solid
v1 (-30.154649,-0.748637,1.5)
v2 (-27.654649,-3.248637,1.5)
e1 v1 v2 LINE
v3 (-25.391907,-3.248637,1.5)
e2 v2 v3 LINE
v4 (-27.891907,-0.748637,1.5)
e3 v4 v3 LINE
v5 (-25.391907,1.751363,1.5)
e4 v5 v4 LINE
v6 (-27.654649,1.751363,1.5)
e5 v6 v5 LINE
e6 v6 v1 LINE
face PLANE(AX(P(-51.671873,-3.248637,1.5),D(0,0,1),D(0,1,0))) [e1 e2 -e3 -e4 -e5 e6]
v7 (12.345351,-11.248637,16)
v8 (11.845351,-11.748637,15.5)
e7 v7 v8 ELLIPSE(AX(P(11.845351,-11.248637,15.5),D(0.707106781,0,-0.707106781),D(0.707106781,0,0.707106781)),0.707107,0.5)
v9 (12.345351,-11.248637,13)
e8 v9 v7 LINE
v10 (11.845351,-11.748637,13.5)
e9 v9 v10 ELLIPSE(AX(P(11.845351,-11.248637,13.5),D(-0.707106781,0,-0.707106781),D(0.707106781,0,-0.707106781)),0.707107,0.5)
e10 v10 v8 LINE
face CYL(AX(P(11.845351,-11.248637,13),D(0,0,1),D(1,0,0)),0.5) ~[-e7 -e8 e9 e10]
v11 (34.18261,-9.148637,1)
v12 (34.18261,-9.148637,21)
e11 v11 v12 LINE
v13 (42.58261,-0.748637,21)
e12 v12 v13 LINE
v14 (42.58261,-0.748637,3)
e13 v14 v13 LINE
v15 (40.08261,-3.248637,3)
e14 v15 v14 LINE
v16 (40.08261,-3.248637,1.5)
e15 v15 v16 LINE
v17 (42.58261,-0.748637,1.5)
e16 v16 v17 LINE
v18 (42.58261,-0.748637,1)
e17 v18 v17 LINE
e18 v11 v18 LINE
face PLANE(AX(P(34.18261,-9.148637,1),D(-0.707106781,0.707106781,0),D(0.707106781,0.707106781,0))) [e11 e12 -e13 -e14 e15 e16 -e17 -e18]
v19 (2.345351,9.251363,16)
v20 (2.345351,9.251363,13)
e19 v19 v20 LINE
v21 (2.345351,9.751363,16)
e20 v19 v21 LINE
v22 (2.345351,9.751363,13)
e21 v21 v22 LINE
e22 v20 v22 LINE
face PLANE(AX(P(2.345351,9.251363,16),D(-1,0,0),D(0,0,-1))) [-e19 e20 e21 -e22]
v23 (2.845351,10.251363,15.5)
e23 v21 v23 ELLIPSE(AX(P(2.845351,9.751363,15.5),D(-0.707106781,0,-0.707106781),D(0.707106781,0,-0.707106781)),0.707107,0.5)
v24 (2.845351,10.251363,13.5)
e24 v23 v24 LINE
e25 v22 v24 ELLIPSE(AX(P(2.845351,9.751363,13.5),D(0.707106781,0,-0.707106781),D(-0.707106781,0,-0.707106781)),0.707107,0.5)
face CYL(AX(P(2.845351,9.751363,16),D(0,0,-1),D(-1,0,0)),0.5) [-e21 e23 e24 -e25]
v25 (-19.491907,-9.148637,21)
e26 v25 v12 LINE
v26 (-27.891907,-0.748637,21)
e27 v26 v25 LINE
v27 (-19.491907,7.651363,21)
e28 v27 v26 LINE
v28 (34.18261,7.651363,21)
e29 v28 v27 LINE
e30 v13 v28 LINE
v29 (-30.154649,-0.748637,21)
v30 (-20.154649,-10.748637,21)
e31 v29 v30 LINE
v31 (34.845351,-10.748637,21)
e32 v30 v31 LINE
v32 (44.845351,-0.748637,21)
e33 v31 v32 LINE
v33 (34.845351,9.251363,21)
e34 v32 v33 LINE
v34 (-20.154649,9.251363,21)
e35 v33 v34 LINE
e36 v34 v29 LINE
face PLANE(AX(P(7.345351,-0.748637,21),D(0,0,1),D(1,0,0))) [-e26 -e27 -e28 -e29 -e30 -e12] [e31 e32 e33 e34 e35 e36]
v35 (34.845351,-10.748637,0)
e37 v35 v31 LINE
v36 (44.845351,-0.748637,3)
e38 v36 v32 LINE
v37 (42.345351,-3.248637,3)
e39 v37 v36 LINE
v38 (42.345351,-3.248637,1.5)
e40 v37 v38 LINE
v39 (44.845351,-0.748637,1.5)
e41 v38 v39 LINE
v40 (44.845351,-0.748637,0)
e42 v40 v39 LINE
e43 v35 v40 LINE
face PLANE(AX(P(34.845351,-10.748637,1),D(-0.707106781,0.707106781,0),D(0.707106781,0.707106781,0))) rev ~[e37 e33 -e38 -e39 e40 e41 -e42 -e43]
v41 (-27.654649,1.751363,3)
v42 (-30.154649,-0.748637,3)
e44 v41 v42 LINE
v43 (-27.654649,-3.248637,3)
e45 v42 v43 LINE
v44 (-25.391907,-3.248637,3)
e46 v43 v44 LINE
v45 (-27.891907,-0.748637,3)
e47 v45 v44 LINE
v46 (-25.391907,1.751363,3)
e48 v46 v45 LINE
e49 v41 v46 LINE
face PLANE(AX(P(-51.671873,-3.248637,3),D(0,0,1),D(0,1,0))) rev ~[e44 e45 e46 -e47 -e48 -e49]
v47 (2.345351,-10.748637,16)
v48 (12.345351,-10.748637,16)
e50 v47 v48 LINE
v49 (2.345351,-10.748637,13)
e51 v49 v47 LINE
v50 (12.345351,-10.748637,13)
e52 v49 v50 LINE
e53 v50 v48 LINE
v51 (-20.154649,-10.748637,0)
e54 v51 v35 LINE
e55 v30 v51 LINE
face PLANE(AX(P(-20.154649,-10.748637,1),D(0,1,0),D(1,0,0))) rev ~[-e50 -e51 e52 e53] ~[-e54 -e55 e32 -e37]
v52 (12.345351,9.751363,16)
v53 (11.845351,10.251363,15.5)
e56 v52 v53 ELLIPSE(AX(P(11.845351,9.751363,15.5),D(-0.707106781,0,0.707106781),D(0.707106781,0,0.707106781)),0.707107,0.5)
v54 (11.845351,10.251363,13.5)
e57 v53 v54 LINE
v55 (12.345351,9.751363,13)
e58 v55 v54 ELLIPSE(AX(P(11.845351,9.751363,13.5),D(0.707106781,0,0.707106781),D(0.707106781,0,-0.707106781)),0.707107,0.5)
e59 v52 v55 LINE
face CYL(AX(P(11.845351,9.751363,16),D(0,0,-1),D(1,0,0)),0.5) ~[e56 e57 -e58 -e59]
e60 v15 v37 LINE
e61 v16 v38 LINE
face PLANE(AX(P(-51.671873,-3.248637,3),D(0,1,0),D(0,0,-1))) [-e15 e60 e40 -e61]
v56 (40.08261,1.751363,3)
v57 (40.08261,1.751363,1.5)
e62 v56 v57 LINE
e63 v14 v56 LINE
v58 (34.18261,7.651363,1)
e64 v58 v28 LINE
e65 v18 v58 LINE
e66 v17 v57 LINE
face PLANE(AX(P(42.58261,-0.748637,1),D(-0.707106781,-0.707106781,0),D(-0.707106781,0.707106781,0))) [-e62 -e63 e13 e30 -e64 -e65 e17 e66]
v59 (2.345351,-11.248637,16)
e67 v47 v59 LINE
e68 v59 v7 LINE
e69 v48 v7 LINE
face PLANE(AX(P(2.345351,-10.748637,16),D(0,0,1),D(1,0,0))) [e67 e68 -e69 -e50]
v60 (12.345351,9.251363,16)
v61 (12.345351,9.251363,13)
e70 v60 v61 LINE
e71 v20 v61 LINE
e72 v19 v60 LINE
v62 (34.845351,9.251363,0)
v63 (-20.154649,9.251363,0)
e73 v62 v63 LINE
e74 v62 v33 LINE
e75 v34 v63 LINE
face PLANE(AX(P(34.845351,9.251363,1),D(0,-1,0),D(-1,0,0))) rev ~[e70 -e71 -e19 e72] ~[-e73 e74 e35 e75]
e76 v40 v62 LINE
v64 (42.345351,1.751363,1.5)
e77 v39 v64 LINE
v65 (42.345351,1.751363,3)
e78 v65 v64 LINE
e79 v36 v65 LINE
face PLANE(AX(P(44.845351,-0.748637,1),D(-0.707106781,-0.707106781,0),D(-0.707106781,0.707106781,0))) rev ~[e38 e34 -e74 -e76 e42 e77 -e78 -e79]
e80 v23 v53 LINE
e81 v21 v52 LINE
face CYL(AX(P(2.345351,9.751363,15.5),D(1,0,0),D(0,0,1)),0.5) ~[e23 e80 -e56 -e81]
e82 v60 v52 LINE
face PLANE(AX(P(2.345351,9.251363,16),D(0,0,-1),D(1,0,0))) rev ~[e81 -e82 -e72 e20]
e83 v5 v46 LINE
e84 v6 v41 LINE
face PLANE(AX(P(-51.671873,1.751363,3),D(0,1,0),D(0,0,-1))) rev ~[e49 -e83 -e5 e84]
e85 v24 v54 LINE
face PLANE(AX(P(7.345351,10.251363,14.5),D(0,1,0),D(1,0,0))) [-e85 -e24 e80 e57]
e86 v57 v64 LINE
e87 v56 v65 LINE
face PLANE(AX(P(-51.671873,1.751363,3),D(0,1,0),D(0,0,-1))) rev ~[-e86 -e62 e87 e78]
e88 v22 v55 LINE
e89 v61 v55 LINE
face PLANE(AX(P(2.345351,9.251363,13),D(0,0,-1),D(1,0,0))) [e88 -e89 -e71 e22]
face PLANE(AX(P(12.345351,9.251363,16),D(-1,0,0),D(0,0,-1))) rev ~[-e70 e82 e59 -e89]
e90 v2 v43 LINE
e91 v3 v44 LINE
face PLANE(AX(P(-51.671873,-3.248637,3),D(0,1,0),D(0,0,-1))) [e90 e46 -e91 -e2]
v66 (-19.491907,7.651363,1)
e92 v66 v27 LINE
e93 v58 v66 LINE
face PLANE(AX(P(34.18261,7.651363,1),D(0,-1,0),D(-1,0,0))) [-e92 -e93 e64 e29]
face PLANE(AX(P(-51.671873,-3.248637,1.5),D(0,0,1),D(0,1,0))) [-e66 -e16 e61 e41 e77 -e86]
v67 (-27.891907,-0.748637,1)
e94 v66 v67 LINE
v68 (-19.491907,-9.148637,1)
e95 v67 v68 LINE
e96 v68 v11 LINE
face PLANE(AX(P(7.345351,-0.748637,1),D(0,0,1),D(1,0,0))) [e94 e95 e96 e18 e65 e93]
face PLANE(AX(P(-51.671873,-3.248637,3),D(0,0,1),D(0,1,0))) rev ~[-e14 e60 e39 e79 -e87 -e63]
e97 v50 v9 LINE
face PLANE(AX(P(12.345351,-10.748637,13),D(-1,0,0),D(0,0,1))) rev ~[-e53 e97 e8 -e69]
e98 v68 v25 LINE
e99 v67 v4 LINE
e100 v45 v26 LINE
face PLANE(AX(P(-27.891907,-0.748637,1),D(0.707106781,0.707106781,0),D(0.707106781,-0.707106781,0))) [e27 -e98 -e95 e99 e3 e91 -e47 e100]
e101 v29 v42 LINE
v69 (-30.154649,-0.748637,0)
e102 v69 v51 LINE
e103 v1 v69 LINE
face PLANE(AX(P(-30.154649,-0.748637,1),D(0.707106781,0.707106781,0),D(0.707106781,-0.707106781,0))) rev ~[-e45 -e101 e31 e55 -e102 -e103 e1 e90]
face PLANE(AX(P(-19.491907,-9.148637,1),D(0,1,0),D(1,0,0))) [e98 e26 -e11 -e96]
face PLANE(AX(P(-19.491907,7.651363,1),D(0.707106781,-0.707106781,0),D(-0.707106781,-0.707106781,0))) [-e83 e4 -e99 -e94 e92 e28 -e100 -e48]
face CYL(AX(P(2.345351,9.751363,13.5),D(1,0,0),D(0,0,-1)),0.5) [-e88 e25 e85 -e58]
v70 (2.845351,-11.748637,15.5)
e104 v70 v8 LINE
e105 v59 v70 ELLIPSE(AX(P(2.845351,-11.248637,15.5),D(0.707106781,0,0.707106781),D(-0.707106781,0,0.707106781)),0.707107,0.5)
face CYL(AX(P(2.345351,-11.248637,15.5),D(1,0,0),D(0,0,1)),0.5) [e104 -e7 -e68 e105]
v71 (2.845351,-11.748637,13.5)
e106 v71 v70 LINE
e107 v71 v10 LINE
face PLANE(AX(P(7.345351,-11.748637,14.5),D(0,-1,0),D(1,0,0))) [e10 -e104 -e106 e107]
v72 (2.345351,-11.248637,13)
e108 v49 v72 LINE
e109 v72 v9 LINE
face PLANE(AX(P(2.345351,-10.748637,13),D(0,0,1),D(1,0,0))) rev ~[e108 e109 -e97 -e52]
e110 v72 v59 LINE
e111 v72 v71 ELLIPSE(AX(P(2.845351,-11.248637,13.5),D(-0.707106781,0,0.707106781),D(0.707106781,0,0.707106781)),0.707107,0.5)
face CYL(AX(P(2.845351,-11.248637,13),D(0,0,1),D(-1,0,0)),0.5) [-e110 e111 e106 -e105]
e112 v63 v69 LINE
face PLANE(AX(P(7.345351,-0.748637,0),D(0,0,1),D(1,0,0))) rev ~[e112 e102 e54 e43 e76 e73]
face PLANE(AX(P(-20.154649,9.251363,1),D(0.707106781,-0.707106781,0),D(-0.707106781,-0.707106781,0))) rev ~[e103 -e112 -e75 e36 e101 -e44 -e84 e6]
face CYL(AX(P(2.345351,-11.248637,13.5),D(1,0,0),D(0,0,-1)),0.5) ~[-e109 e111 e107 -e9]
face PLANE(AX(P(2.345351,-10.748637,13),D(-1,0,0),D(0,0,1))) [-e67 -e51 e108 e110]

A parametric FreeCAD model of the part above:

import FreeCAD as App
import Part
import Sketcher
from FreeCAD import Vector
Q = App.Units.Quantity


def edges_at(feature, points):
    """Names of the edges that pass closest to the given points."""
    edges = feature.Shape.Edges
    near = lambda p: min(range(len(edges)), key=lambda i: edges[i].distToShape(Part.Vertex(*p))[0])
    return sorted({f"Edge{near(p) + 1}" for p in points})


def add_polygon(sketch, points):
    """Adds a closed chain of lines whose ends are joined by coincident constraints."""
    first, n = sketch.GeometryCount, len(points)
    for a, b in zip(points, points[1:] + points[:1]):
        sketch.addGeometry(Part.LineSegment(App.Vector(*a, 0), App.Vector(*b, 0)), False)
    for i in range(n):
        sketch.addConstraint(Sketcher.Constraint("Coincident", first + i, 2, first + (i + 1) % n, 1))

doc = App.newDocument("Part")
body = doc.addObject("PartDesign::Body", "Body")

sketch1 = body.newObject("Sketcher::SketchObject", "Sketch")
sketch1.AttachmentSupport = (doc.getObject("XY_Plane"), [""])
sketch1.MapMode = "FlatFace"
add_polygon(sketch1, [(34.845351, 9.251363), (-20.154649, 9.251363), (-30.154649, -0.748637), (-20.154649, -10.748637), (34.845351, -10.748637), (44.845351, -0.748637)])
sketch1.addConstraint(Sketcher.Constraint("Horizontal", 0))
sketch1.addConstraint(Sketcher.Constraint("Horizontal", 3))
sketch1.addConstraint(Sketcher.Constraint("Perpendicular", 1, 2))
sketch1.addConstraint(Sketcher.Constraint("Perpendicular", 2, 4))
sketch1.addConstraint(Sketcher.Constraint("Perpendicular", 4, 5))
sketch1.addConstraint(Sketcher.Constraint("Horizontal", 1, 2, 4, 2))
sketch1.addConstraint(Sketcher.Constraint("Vertical", 0, 2, 2, 2))
sketch1.addConstraint(Sketcher.Constraint("Vertical", 3, 2, 5, 2))
sketch1.addConstraint(Sketcher.Constraint("DistanceX", 0, 2, 0, 1, Q("55 mm")))
sketch1.addConstraint(Sketcher.Constraint("DistanceX", 1, 2, 0, 2, Q("10 mm")))
sketch1.addConstraint(Sketcher.Constraint("DistanceX", 0, 2, -1, 1, Q("20.154649 mm")))
sketch1.addConstraint(Sketcher.Constraint("DistanceY", -1, 1, 0, 2, Q("9.251363 mm")))
pad1 = body.newObject("PartDesign::Pad", "Pad")
pad1.Profile = sketch1
pad1.Length = 1

sketch2 = body.newObject("Sketcher::SketchObject", "Sketch001")
sketch2.AttachmentSupport = (doc.getObject("XY_Plane"), [""])
sketch2.MapMode = "FlatFace"
sketch2.AttachmentOffset = App.Placement(Vector(0, 0, 1), App.Rotation())
add_polygon(sketch2, [(-20.154649, -10.748637), (34.845351, -10.748637), (44.845351, -0.748637), (34.845351, 9.251363), (-20.154649, 9.251363), (-30.154649, -0.748637)])
add_polygon(sketch2, [(-27.891907, -0.748637), (-19.491907, 7.651363), (34.18261, 7.651363), (42.58261, -0.748637), (34.18261, -9.148637), (-19.491907, -9.148637)])
sketch2.addConstraint(Sketcher.Constraint("Horizontal", 0))
sketch2.addConstraint(Sketcher.Constraint("Horizontal", 3))
sketch2.addConstraint(Sketcher.Constraint("Horizontal", 7))
sketch2.addConstraint(Sketcher.Constraint("Horizontal", 10))
sketch2.addConstraint(Sketcher.Constraint("Perpendicular", 1, 2))
sketch2.addConstraint(Sketcher.Constraint("Perpendicular", 2, 4))
sketch2.addConstraint(Sketcher.Constraint("Perpendicular", 4, 5))
sketch2.addConstraint(Sketcher.Constraint("Perpendicular", 5, 6))
sketch2.addConstraint(Sketcher.Constraint("Perpendicular", 6, 8))
sketch2.addConstraint(Sketcher.Constraint("Perpendicular", 8, 9))
sketch2.addConstraint(Sketcher.Constraint("Perpendicular", 9, 11))
sketch2.addConstraint(Sketcher.Constraint("Horizontal", 1, 2, 4, 2))
sketch2.addConstraint(Sketcher.Constraint("Horizontal", 4, 2, 8, 2))
sketch2.addConstraint(Sketcher.Constraint("Horizontal", 8, 2, 11, 2))
sketch2.addConstraint(Sketcher.Constraint("Vertical", 0, 2, 2, 2))
sketch2.addConstraint(Sketcher.Constraint("Vertical", 3, 2, 5, 2))
sketch2.addConstraint(Sketcher.Constraint("Vertical", 7, 2, 9, 2))
sketch2.addConstraint(Sketcher.Constraint("DistanceX", 0, 1, 0, 2, Q("55 mm")))
sketch2.addConstraint(Sketcher.Constraint("DistanceX", 0, 2, 1, 2, Q("10 mm")))
sketch2.addConstraint(Sketcher.Constraint("DistanceY", 6, 2, 3, 2, Q("1.6 mm")))
sketch2.addConstraint(Sketcher.Constraint("DistanceX", 7, 1, 7, 2, Q("53.674517 mm")))
sketch2.addConstraint(Sketcher.Constraint("DistanceX", -1, 1, 0, 2, Q("34.845351 mm")))
sketch2.addConstraint(Sketcher.Constraint("DistanceX", -1, 1, 7, 2, Q("34.18261 mm")))
sketch2.addConstraint(Sketcher.Constraint("DistanceY", 0, 2, -1, 1, Q("10.748637 mm")))
pad2 = body.newObject("PartDesign::Pad", "Pad001")
pad2.Profile = sketch2
pad2.Length = 20

sketch3 = body.newObject("Sketcher::SketchObject", "Sketch002")
sketch3.AttachmentSupport = (doc.getObject("YZ_Plane"), [""])
sketch3.MapMode = "FlatFace"
add_polygon(sketch3, [(1.751363, 3), (-3.248637, 3), (-3.248637, 1.5), (1.751363, 1.5)])
sketch3.addConstraint(Sketcher.Constraint("Horizontal", 0))
sketch3.addConstraint(Sketcher.Constraint("Vertical", 1))
sketch3.addConstraint(Sketcher.Constraint("Horizontal", 2))
sketch3.addConstraint(Sketcher.Constraint("Vertical", 3))
sketch3.addConstraint(Sketcher.Constraint("DistanceX", 0, 2, 0, 1, Q("5 mm")))
sketch3.addConstraint(Sketcher.Constraint("DistanceY", 1, 2, 1, 1, Q("1.5 mm")))
sketch3.addConstraint(Sketcher.Constraint("DistanceY", -1, 1, 0, 2, Q("3 mm")))
sketch3.addConstraint(Sketcher.Constraint("DistanceX", 0, 2, -1, 1, Q("3.248637 mm")))
pocket1 = body.newObject("PartDesign::Pocket", "Pocket")
pocket1.Profile = sketch3
pocket1.Type = "ThroughAll"
pocket1.Midplane = True

sketch4 = body.newObject("Sketcher::SketchObject", "Sketch003")
sketch4.AttachmentSupport = (doc.getObject("XZ_Plane"), [""])
sketch4.MapMode = "FlatFace"
sketch4.AttachmentOffset = App.Placement(Vector(0, 0, -9.251363), App.Rotation())
add_polygon(sketch4, [(2.345351, 13), (2.345351, 16), (12.345351, 16), (12.345351, 13)])
sketch4.addConstraint(Sketcher.Constraint("Vertical", 0))
sketch4.addConstraint(Sketcher.Constraint("Horizontal", 1))
sketch4.addConstraint(Sketcher.Constraint("Vertical", 2))
sketch4.addConstraint(Sketcher.Constraint("Horizontal", 3))
sketch4.addConstraint(Sketcher.Constraint("DistanceX", 1, 1, 1, 2, Q("10 mm")))
sketch4.addConstraint(Sketcher.Constraint("DistanceY", 0, 1, 0, 2, Q("3 mm")))
sketch4.addConstraint(Sketcher.Constraint("DistanceY", -1, 1, 0, 2, Q("16 mm")))
sketch4.addConstraint(Sketcher.Constraint("DistanceX", -1, 1, 0, 2, Q("2.345351 mm")))
pad3 = body.newObject("PartDesign::Pad", "Pad002")
pad3.Profile = sketch4
pad3.Length = 1
pad3.Reversed = True
doc.recompute()

fillet = body.newObject("PartDesign::Fillet", "Fillet")
fillet.Base = (pad3, edges_at(pad3, [
    (2.345, 10.251, 14.5),
    (7.345, 10.251, 16),
    (12.345, 10.251, 14.5),
    (7.345, 10.251, 13),
]))
fillet.Radius = 0.5

sketch5 = body.newObject("Sketcher::SketchObject", "Sketch004")
sketch5.AttachmentSupport = (doc.getObject("XZ_Plane"), [""])
sketch5.MapMode = "FlatFace"
sketch5.AttachmentOffset = App.Placement(Vector(0, 0, 10.748637), App.Rotation())
add_polygon(sketch5, [(2.345351, 16), (2.345351, 13), (12.345351, 13), (12.345351, 16)])
sketch5.addConstraint(Sketcher.Constraint("Vertical", 0))
sketch5.addConstraint(Sketcher.Constraint("Horizontal", 1))
sketch5.addConstraint(Sketcher.Constraint("Vertical", 2))
sketch5.addConstraint(Sketcher.Constraint("Horizontal", 3))
sketch5.addConstraint(Sketcher.Constraint("DistanceX", 1, 1, 1, 2, Q("10 mm")))
sketch5.addConstraint(Sketcher.Constraint("DistanceY", 0, 2, 0, 1, Q("3 mm")))
sketch5.addConstraint(Sketcher.Constraint("DistanceY", -1, 1, 0, 2, Q("13 mm")))
sketch5.addConstraint(Sketcher.Constraint("DistanceX", -1, 1, 0, 2, Q("2.345351 mm")))
pad4 = body.newObject("PartDesign::Pad", "Pad003")
pad4.Profile = sketch5
pad4.Length = 1
doc.recompute()

fillet2 = body.newObject("PartDesign::Fillet", "Fillet001")
fillet2.Base = (pad4, edges_at(pad4, [
    (2.345, -11.749, 14.5),
    (7.345, -11.749, 13),
    (12.345, -11.749, 14.5),
    (7.345, -11.749, 16),
]))
fillet2.Radius = 0.5

doc.recompute()
